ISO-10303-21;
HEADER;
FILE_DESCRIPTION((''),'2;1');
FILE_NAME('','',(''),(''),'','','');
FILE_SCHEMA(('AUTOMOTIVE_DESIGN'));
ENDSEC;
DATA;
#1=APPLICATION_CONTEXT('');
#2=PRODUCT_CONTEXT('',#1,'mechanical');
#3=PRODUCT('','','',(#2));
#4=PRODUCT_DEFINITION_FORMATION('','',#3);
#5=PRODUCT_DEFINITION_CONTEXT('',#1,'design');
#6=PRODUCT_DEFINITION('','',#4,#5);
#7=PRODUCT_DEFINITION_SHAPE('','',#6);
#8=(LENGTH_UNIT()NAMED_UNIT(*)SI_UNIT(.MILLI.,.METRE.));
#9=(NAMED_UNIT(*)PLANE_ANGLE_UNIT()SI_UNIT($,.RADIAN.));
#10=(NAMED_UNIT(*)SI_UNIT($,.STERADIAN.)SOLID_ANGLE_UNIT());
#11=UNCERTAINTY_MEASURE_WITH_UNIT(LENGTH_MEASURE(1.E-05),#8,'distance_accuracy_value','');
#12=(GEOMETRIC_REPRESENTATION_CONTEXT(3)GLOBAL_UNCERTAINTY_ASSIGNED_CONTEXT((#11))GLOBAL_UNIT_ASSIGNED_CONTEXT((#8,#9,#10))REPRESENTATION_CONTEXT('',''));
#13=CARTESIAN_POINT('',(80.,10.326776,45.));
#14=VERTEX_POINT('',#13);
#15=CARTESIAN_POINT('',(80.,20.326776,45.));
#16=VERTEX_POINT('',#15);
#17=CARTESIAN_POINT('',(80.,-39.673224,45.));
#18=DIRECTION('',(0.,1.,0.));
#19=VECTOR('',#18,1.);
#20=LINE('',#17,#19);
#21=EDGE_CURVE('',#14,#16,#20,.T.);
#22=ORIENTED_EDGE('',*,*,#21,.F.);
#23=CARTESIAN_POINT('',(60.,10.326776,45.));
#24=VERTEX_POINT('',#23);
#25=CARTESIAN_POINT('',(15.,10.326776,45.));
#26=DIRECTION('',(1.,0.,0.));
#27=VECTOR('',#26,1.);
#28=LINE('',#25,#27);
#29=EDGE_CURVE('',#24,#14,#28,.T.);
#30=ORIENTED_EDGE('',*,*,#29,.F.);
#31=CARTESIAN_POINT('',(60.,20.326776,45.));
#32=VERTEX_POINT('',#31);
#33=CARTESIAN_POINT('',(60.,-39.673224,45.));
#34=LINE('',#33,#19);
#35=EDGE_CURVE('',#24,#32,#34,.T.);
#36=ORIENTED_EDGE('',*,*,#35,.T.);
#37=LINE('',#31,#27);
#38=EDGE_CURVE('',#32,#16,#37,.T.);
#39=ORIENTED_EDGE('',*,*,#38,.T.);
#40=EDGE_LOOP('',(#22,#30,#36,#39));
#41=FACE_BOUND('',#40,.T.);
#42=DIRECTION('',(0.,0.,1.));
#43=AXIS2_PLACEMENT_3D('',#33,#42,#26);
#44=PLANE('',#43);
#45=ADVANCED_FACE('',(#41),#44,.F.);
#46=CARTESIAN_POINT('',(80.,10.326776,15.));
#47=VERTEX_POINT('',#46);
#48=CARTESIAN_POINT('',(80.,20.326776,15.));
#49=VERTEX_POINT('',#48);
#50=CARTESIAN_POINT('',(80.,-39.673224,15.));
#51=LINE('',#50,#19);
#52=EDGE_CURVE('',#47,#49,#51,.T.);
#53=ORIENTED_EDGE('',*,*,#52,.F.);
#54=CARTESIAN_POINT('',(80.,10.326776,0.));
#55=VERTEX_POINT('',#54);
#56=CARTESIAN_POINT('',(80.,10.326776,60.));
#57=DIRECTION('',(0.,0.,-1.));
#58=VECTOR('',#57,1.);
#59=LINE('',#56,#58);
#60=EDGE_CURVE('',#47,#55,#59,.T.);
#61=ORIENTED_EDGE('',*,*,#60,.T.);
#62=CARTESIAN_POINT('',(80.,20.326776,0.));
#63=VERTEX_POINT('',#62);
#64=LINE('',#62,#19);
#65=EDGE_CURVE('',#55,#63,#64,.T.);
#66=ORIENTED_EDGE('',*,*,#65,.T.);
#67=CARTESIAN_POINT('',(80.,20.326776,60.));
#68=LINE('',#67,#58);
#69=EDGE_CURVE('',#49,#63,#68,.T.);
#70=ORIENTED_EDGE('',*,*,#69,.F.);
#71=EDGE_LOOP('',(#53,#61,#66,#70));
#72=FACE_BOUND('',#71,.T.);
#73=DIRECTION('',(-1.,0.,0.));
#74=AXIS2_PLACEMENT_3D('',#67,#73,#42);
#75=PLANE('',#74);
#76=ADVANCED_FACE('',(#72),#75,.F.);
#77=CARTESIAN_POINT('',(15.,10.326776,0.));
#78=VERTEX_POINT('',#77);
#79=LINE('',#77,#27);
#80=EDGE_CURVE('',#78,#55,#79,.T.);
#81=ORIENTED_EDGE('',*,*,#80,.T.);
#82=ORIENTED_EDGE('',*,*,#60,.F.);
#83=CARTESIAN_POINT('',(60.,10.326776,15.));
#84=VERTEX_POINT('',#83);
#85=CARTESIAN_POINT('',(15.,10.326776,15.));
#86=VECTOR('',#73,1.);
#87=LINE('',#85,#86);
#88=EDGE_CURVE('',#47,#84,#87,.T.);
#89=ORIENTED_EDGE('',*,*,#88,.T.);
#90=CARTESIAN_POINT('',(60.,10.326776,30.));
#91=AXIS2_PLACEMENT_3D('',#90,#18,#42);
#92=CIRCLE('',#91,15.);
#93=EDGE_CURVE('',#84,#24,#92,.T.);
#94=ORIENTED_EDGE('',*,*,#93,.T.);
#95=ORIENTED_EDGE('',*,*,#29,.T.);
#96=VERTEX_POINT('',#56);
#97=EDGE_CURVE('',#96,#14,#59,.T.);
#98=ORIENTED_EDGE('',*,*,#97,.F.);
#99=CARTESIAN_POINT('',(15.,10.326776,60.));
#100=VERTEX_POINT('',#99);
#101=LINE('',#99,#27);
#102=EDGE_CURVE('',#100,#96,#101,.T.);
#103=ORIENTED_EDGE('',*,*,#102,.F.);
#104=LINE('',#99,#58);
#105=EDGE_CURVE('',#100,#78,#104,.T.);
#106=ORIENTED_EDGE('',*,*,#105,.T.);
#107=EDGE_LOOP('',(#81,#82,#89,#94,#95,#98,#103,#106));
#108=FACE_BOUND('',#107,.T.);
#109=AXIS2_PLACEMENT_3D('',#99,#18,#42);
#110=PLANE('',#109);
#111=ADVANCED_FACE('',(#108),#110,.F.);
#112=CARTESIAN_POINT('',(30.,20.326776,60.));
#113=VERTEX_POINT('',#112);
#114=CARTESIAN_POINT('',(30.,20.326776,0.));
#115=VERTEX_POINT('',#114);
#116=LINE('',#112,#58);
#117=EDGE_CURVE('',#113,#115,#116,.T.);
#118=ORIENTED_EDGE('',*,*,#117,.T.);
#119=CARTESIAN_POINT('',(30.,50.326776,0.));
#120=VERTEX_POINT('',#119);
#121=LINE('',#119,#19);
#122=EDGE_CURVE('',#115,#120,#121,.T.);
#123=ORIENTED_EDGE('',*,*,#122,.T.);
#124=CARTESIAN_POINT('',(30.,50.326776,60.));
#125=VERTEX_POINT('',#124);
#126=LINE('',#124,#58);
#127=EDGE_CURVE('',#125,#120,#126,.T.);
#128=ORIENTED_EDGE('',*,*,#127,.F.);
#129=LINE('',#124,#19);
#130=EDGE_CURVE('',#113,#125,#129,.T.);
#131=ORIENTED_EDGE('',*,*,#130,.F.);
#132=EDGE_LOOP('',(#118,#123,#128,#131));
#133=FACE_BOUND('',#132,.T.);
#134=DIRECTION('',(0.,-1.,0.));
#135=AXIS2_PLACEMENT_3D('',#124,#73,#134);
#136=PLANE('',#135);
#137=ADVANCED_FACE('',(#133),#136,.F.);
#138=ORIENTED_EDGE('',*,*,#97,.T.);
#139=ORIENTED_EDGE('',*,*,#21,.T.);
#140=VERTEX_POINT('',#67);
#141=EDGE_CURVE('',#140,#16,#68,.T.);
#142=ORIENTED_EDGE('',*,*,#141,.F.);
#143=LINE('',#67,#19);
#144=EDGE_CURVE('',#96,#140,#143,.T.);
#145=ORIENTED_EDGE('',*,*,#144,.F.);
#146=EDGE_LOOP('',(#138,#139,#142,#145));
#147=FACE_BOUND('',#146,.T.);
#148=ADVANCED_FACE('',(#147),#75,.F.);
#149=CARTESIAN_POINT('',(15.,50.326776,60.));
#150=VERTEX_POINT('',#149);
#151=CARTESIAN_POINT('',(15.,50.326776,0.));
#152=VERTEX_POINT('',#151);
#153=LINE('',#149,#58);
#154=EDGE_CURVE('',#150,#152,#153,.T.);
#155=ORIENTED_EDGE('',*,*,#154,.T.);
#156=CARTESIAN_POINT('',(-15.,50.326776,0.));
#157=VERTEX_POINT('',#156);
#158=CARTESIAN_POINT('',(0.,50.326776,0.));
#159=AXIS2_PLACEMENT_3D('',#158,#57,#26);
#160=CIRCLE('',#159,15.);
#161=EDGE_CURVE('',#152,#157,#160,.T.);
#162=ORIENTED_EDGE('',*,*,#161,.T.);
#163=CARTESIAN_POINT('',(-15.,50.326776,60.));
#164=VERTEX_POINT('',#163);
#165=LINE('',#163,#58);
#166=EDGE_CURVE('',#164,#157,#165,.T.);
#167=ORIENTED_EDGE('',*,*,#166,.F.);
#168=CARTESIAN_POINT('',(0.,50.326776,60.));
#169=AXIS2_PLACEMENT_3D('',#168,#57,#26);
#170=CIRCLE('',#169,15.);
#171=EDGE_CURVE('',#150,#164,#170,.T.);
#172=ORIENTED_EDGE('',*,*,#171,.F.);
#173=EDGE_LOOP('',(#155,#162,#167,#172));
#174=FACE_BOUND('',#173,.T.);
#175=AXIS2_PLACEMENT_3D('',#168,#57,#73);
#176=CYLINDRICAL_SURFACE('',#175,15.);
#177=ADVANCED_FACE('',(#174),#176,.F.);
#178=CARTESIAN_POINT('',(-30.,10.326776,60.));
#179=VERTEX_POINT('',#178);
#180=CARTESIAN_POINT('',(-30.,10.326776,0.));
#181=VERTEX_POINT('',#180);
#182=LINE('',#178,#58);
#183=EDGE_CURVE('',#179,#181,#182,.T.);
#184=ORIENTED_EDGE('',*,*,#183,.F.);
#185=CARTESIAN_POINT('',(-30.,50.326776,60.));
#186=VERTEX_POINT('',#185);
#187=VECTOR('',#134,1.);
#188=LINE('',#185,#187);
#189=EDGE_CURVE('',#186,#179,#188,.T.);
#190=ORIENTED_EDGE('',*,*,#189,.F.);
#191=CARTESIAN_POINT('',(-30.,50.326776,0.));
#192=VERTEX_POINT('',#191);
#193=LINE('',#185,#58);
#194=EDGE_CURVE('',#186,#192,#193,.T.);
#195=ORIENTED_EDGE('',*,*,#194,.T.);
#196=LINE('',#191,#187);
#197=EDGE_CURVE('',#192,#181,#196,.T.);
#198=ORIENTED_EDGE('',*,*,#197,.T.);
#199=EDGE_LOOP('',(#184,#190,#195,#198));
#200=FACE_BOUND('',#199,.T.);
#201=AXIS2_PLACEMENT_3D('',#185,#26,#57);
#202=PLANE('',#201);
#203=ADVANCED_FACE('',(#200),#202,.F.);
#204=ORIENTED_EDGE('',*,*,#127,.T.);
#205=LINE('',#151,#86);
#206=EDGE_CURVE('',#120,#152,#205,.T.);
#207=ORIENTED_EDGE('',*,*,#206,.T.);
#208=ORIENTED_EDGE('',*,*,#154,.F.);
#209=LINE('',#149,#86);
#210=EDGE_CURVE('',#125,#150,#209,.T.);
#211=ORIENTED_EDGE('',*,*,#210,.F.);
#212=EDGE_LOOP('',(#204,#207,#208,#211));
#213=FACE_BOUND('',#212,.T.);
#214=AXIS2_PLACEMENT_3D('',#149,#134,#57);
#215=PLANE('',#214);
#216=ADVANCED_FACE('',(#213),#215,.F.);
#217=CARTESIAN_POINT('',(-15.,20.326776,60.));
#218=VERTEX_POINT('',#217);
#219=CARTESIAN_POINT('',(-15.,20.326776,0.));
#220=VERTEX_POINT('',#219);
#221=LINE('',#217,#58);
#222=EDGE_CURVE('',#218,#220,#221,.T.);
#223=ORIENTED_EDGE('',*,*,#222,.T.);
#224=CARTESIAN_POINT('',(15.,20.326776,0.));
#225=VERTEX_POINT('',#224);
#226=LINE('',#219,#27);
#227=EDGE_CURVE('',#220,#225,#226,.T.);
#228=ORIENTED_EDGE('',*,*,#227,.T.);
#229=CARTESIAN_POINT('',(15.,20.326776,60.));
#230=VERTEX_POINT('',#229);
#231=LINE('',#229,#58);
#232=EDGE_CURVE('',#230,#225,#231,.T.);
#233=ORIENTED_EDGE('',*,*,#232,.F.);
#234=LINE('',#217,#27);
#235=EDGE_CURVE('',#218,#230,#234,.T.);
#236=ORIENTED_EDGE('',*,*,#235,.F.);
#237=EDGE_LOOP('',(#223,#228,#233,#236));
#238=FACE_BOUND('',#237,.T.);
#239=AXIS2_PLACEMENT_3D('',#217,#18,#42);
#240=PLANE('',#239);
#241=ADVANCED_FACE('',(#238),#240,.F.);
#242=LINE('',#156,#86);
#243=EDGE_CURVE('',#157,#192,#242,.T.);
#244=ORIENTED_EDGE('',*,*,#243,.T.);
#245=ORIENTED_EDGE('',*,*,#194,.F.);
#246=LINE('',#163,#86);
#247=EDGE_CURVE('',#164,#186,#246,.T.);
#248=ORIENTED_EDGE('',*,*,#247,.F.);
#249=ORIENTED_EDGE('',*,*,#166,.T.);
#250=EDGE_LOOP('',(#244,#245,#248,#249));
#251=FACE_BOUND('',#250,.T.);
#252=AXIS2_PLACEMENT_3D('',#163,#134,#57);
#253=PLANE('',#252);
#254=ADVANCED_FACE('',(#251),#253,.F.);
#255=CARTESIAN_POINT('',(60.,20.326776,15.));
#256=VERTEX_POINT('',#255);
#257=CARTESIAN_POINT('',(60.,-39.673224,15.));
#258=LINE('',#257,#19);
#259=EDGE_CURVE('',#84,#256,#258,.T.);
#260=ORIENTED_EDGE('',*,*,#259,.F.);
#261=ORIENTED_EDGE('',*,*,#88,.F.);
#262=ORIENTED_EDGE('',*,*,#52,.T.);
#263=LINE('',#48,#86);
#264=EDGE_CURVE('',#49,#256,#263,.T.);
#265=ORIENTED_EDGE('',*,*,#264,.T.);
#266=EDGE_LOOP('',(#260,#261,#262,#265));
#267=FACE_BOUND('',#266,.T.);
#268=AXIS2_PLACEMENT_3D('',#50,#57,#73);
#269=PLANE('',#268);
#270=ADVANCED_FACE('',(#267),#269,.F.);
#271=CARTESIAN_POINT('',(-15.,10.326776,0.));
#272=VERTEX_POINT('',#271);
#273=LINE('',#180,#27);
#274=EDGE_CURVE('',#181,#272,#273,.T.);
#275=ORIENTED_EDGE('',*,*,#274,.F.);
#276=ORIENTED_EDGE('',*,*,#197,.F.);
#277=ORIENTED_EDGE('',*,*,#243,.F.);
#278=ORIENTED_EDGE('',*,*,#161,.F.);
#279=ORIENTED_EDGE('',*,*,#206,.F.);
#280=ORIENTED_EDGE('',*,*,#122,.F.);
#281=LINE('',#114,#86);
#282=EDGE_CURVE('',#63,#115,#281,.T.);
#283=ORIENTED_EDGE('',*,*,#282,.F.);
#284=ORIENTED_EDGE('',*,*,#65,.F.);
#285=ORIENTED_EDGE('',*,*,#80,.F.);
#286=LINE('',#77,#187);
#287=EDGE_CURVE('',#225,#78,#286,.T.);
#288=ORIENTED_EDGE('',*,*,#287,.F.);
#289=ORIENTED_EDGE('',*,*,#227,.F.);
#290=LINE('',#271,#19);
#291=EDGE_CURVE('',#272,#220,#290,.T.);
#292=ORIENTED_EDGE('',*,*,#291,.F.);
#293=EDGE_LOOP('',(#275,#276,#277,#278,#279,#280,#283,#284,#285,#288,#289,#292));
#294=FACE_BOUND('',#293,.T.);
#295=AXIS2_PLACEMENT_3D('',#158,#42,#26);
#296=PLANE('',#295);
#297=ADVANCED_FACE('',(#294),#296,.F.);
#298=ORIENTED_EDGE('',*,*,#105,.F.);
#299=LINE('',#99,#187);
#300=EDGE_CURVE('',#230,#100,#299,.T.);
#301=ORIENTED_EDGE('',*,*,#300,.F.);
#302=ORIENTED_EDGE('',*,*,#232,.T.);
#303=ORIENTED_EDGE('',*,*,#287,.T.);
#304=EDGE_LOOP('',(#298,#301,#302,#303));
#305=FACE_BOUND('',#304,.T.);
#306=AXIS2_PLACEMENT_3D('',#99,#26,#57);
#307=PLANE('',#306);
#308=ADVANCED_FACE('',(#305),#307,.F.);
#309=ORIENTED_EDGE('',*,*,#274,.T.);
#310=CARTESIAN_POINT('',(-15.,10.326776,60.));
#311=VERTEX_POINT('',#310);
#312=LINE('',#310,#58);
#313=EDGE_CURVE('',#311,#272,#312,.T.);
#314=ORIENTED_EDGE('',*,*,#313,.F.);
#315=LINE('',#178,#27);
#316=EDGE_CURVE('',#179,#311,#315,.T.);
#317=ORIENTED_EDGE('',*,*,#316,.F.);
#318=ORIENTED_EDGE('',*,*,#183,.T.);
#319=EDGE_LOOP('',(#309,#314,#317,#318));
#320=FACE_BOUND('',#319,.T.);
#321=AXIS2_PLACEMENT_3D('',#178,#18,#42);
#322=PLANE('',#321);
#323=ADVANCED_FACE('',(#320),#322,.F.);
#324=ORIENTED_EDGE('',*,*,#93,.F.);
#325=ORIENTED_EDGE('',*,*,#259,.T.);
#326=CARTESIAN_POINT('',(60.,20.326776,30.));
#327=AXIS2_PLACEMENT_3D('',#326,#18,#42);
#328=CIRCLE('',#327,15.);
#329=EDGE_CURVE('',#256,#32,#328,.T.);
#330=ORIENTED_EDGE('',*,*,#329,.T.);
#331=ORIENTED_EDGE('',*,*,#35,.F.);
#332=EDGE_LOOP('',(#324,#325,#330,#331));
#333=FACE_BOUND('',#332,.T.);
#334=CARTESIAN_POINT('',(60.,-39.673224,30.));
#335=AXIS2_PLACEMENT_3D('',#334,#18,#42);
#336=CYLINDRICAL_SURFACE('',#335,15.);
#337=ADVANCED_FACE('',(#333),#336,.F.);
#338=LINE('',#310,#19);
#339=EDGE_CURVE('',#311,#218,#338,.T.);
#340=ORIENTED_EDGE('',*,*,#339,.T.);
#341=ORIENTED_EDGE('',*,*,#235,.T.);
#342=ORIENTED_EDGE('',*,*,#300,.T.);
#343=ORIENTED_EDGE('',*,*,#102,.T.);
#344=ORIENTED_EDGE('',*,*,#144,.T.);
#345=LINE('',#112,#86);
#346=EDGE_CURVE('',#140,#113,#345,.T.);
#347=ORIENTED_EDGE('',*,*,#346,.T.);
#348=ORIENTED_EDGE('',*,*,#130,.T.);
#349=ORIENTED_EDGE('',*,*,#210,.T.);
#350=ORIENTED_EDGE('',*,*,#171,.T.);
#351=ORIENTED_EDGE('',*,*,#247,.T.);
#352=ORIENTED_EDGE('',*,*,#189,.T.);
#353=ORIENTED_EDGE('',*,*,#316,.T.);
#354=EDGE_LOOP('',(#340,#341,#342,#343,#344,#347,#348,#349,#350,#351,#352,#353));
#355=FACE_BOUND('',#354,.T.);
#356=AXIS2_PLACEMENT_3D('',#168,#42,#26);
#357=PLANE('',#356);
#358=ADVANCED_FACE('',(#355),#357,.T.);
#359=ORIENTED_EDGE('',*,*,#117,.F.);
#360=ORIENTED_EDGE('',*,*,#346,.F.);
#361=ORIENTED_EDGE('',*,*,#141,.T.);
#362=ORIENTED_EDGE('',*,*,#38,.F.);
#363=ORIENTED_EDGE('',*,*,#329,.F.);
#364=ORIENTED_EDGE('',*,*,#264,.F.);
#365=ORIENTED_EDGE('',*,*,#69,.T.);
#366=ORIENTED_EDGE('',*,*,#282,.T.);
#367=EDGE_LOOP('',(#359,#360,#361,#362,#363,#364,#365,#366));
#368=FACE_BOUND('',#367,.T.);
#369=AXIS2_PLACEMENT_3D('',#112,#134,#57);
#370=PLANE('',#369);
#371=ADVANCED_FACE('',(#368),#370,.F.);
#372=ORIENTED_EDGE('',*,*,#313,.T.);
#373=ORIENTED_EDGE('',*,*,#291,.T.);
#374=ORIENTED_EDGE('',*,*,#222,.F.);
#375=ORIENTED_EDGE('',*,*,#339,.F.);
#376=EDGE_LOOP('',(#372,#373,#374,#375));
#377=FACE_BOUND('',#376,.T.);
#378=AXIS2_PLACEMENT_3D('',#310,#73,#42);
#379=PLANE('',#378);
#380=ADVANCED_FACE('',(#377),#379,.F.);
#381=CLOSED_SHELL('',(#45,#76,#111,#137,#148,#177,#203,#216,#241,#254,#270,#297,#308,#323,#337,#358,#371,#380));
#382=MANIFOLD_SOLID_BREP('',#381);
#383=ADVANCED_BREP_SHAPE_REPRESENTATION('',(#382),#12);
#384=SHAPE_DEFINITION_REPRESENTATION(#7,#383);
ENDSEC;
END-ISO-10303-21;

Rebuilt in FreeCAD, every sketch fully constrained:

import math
import FreeCAD as App
import Part
import Sketcher
Q = App.Units.Quantity

doc = App.newDocument("Part")
body = doc.addObject("PartDesign::Body", "Body")

# Sketch on XY plane
sketch1 = doc.addObject("Sketcher::SketchObject", "Sketch")
body.addObject(sketch1)
sketch1.AttachmentSupport = (doc.XY_Plane, [""])
sketch1.MapMode = "FlatFace"
sketch1.addGeometry([
    Part.LineSegment(App.Vector(-30, 50.326776, 0), App.Vector(-30, 10.326776, 0)),  # 0
    Part.LineSegment(App.Vector(-30, 10.326776, 0), App.Vector(-15, 10.326776, 0)),  # 1
    Part.LineSegment(App.Vector(-15, 10.326776, 0), App.Vector(-15, 20.326776, 0)),  # 2
    Part.LineSegment(App.Vector(-15, 20.326776, 0), App.Vector(15, 20.326776, 0)),  # 3
    Part.LineSegment(App.Vector(15, 20.326776, 0), App.Vector(15, 10.326776, 0)),  # 4
    Part.LineSegment(App.Vector(15, 10.326776, 0), App.Vector(80, 10.326776, 0)),  # 5
    Part.LineSegment(App.Vector(80, 10.326776, 0), App.Vector(80, 20.326776, 0)),  # 6
    Part.LineSegment(App.Vector(80, 20.326776, 0), App.Vector(30, 20.326776, 0)),  # 7
    Part.LineSegment(App.Vector(30, 20.326776, 0), App.Vector(30, 50.326776, 0)),  # 8
    Part.LineSegment(App.Vector(30, 50.326776, 0), App.Vector(15, 50.326776, 0)),  # 9
    Part.ArcOfCircle(Part.Circle(App.Vector(0, 50.326776, 0), App.Vector(0, 0, 1), 15), math.radians(180), math.radians(360)),  # 10
    Part.LineSegment(App.Vector(-15, 50.326776, 0), App.Vector(-30, 50.326776, 0)),  # 11
], False)
sketch1.addConstraint([
    Sketcher.Constraint("Coincident", 0, 2, 1, 1),
    Sketcher.Constraint("Coincident", 1, 2, 2, 1),
    Sketcher.Constraint("Coincident", 2, 2, 3, 1),
    Sketcher.Constraint("Coincident", 3, 2, 4, 1),
    Sketcher.Constraint("Coincident", 4, 2, 5, 1),
    Sketcher.Constraint("Coincident", 5, 2, 6, 1),
    Sketcher.Constraint("Coincident", 6, 2, 7, 1),
    Sketcher.Constraint("Coincident", 7, 2, 8, 1),
    Sketcher.Constraint("Coincident", 8, 2, 9, 1),
    Sketcher.Constraint("Coincident", 9, 2, 10, 2),
    Sketcher.Constraint("Coincident", 10, 1, 11, 1),
    Sketcher.Constraint("Coincident", 11, 2, 0, 1),
    Sketcher.Constraint("Vertical", 0),
    Sketcher.Constraint("Horizontal", 1),
    Sketcher.Constraint("Vertical", 2),
    Sketcher.Constraint("Horizontal", 3),
    Sketcher.Constraint("Vertical", 4),
    Sketcher.Constraint("Horizontal", 5),
    Sketcher.Constraint("Vertical", 6),
    Sketcher.Constraint("Horizontal", 7),
    Sketcher.Constraint("Vertical", 8),
    Sketcher.Constraint("Horizontal", 9),
    Sketcher.Constraint("Horizontal", 11),
    Sketcher.Constraint("Symmetric", 1, 2, 4, 2, -2),
    Sketcher.Constraint("Symmetric", 9, 2, 10, 1, -2),
    Sketcher.Constraint("Horizontal", 3, 2, 6, 2),
    Sketcher.Constraint("Horizontal", 10, 3, 8, 2),
    Sketcher.Constraint("Vertical", 4, 2, 9, 2),
    Sketcher.Constraint("Equal", 1, 9),
    Sketcher.Constraint("Equal", 3, 8),
    Sketcher.Constraint("Radius", 10, Q("15 mm")),
    Sketcher.Constraint("DistanceX", 1, 1, 1, 2, Q("15 mm")),
    Sketcher.Constraint("DistanceX", 5, 1, 5, 2, Q("65 mm")),
    Sketcher.Constraint("DistanceY", 0, 2, 0, 1, Q("40 mm")),
    Sketcher.Constraint("DistanceY", -1, 1, 10, 3, Q("50.326776 mm")),
])
pad1 = doc.addObject("PartDesign::Pad", "Pad")
body.addObject(pad1)
pad1.Profile = sketch1
pad1.Length = 60

# Sketch on XZ plane
sketch2 = doc.addObject("Sketcher::SketchObject", "Sketch001")
body.addObject(sketch2)
sketch2.AttachmentSupport = (doc.XZ_Plane, [""])
sketch2.MapMode = "FlatFace"
sketch2.AttachmentOffset = App.Placement(App.Vector(0, 0, -20.326776), App.Rotation())
sketch2.addGeometry([
    Part.LineSegment(App.Vector(80, 45, 0), App.Vector(80, 15, 0)),
    Part.LineSegment(App.Vector(80, 15, 0), App.Vector(60, 15, 0)),
    Part.ArcOfCircle(Part.Circle(App.Vector(60, 30, 0), App.Vector(0, 0, 1), 15), math.radians(90), math.radians(270)),
    Part.LineSegment(App.Vector(60, 45, 0), App.Vector(80, 45, 0)),
], False)
sketch2.addConstraint([
    Sketcher.Constraint("Coincident", 0, 2, 1, 1),
    Sketcher.Constraint("Tangent", 1, 2, 2, 2),
    Sketcher.Constraint("Tangent", 2, 1, 3, 1),
    Sketcher.Constraint("Coincident", 3, 2, 0, 1),
    Sketcher.Constraint("Vertical", 0),
    Sketcher.Constraint("Horizontal", 1),
    Sketcher.Constraint("Horizontal", 3),
    Sketcher.Constraint("Radius", 2, Q("15 mm")),
    Sketcher.Constraint("DistanceX", 1, 2, 1, 1, Q("20 mm")),
    Sketcher.Constraint("DistanceX", -1, 1, 2, 3, Q("60 mm")),
    Sketcher.Constraint("DistanceY", -1, 1, 2, 3, Q("30 mm")),
])
pocket1 = doc.addObject("PartDesign::Pocket", "Pocket")
body.addObject(pocket1)
pocket1.Profile = sketch2
pocket1.Length = 60
pocket1.Reversed = True

doc.recompute()
